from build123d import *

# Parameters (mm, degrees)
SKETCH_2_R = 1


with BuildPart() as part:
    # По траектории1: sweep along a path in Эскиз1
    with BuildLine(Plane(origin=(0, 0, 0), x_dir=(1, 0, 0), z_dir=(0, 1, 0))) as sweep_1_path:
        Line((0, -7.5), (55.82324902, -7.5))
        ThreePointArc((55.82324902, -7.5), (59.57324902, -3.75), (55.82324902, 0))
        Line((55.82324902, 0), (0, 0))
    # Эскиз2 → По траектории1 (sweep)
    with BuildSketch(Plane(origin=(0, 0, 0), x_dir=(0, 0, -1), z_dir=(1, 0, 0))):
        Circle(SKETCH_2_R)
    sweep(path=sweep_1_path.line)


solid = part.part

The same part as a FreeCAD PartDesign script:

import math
import FreeCAD as App
import Part
import Sketcher

V = App.Vector

doc = App.newDocument("Part")
params = doc.addObject("Spreadsheet::Sheet", "Params")
for row, (alias, value) in enumerate([
    ("sketch1_diameter", "2 mm"),
    ("sketch2_radius", "3.75 mm"),
], start=1):
    params.set(f"A{row}", alias)
    params.set(f"B{row}", "=" + value)
    params.setAlias(f"B{row}", alias)

body = doc.addObject("PartDesign::Body", "Body")

# Sketch on YZ plane
sketch1 = doc.addObject("Sketcher::SketchObject", "Sketch")
body.addObject(sketch1)
sketch1.AttachmentSupport = (doc.YZ_Plane, [""])
sketch1.MapMode = "FlatFace"
sketch1.addGeometry(Part.Circle(V(0, 0, 0), V(0, 0, 1), 1), False)
sketch1.addConstraint([
    Sketcher.Constraint("Coincident", 0, 3, -1, 1),
    Sketcher.Constraint("Diameter", 0, 2.0),
])
sketch1.setExpression("Constraints[1]", "Params.sketch1_diameter")

# Sketch on XZ plane
sketch2 = doc.addObject("Sketcher::SketchObject", "Sketch001")
body.addObject(sketch2)
sketch2.AttachmentSupport = (doc.XZ_Plane, [""])
sketch2.MapMode = "FlatFace"
sketch2.addGeometry([
    Part.LineSegment(V(0, 7.5, 0), V(55.8, 7.5, 0)),
    Part.ArcOfCircle(Part.Circle(V(55.8, 3.8, 0), V(0, 0, 1), 3.8), math.radians(-90), math.radians(90)),
    Part.LineSegment(V(55.8, 0, 0), V(0, 0, 0)),
], False)
sketch2.addConstraint([
    Sketcher.Constraint("Tangent", 0, 2, 1, 2),
    Sketcher.Constraint("Tangent", 1, 1, 2, 1),
    Sketcher.Constraint("Horizontal", 0),
    Sketcher.Constraint("Horizontal", 2),
    Sketcher.Constraint("Coincident", 2, 2, -1, 1),
    Sketcher.Constraint("PointOnObject", 0, 1, -2),
    Sketcher.Constraint("Radius", 1, 3.75),
    Sketcher.Constraint("DistanceX", 0, 1, 0, 2, 55.823249),
])
sketch2.setExpression("Constraints[6]", "Params.sketch2_radius")
doc.recompute()

additivepipe = doc.addObject("PartDesign::AdditivePipe", "AdditivePipe")
body.addObject(additivepipe)
additivepipe.Profile = sketch1
additivepipe.Spine = (sketch2, ["Edge1", "Edge2", "Edge3"])

doc.recompute()
